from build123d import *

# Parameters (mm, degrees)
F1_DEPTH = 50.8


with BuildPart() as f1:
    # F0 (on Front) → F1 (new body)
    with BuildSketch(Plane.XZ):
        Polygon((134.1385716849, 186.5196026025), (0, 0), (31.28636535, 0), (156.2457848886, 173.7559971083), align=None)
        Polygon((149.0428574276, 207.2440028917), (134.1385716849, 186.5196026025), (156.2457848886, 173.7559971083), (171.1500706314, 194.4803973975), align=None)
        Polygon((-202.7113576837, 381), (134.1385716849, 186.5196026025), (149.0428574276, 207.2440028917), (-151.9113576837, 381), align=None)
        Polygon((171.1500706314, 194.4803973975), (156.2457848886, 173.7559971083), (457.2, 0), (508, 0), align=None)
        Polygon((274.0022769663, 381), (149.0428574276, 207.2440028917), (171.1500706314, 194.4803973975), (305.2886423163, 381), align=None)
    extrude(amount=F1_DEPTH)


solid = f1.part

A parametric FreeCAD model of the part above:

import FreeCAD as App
import Part
import Sketcher
Q = App.Units.Quantity


def add_polygon(sketch, points):
    """Adds a closed chain of lines whose ends are joined by coincident constraints."""
    first, n = sketch.GeometryCount, len(points)
    for a, b in zip(points, points[1:] + points[:1]):
        sketch.addGeometry(Part.LineSegment(App.Vector(*a, 0), App.Vector(*b, 0)), False)
    for i in range(n):
        sketch.addConstraint(Sketcher.Constraint("Coincident", first + i, 2, first + (i + 1) % n, 1))

doc = App.newDocument("Part")
body = doc.addObject("PartDesign::Body", "Body")

# Sketch on XZ plane
sketch1 = body.newObject("Sketcher::SketchObject", "Sketch")
sketch1.AttachmentSupport = (doc.getObject("XZ_Plane"), [""])
sketch1.MapMode = "FlatFace"
add_polygon(sketch1, [(134.138572, 186.519603), (0, 0), (31.286365, 0), (156.245785, 173.755997), (457.2, 0), (508, 0), (171.150071, 194.480397), (305.288642, 381), (274.002277, 381), (149.042857, 207.244003), (-151.911358, 381), (-202.711358, 381)])  # lines 0-11
sketch1.addConstraint(Sketcher.Constraint("Horizontal", 1))
sketch1.addConstraint(Sketcher.Constraint("Horizontal", 4))
sketch1.addConstraint(Sketcher.Constraint("Horizontal", 7))
sketch1.addConstraint(Sketcher.Constraint("Horizontal", 10))
sketch1.addConstraint(Sketcher.Constraint("Coincident", 0, 2, -1, 1))
sketch1.addConstraint(Sketcher.Constraint("PointOnObject", 3, 2, -1))
sketch1.addConstraint(Sketcher.Constraint("Parallel", 0, 2))
sketch1.addConstraint(Sketcher.Constraint("Parallel", 3, 5))
sketch1.addConstraint(Sketcher.Constraint("Parallel", 2, 6))
sketch1.addConstraint(Sketcher.Constraint("Parallel", 6, 8))
sketch1.addConstraint(Sketcher.Constraint("Parallel", 5, 9))
sketch1.addConstraint(Sketcher.Constraint("Parallel", 9, 11))
sketch1.addConstraint(Sketcher.Constraint("Horizontal", 7, 2, 9, 2))
sketch1.addConstraint(Sketcher.Constraint("Equal", 1, 7))
sketch1.addConstraint(Sketcher.Constraint("Equal", 4, 10))
sketch1.addConstraint(Sketcher.Constraint("Equal", 0, 6))
sketch1.addConstraint(Sketcher.Constraint("DistanceX", 4, 1, 4, 2, Q("2 in")))
sketch1.addConstraint(Sketcher.Constraint("DistanceX", -1, 1, 3, 2, Q("18 in")))
sketch1.addConstraint(Sketcher.Constraint("DistanceY", -1, 1, 6, 2, Q("15 in")))
sketch1.addConstraint(Sketcher.Constraint("Angle", 3, Q("-30 deg")))
sketch1.addConstraint(Sketcher.Constraint("Distance", 0, 229.744899))
sketch1.addConstraint(Sketcher.Constraint("DistanceY", 2, 2, 5, 2, 20.7244))
sketch1.addConstraint(Sketcher.Constraint("DistanceX", 11, 2, 5, 2, 37.011499))
pad1 = body.newObject("PartDesign::Pad", "Pad")
pad1.Profile = sketch1
pad1.Length = Q("2 in")

doc.recompute()
